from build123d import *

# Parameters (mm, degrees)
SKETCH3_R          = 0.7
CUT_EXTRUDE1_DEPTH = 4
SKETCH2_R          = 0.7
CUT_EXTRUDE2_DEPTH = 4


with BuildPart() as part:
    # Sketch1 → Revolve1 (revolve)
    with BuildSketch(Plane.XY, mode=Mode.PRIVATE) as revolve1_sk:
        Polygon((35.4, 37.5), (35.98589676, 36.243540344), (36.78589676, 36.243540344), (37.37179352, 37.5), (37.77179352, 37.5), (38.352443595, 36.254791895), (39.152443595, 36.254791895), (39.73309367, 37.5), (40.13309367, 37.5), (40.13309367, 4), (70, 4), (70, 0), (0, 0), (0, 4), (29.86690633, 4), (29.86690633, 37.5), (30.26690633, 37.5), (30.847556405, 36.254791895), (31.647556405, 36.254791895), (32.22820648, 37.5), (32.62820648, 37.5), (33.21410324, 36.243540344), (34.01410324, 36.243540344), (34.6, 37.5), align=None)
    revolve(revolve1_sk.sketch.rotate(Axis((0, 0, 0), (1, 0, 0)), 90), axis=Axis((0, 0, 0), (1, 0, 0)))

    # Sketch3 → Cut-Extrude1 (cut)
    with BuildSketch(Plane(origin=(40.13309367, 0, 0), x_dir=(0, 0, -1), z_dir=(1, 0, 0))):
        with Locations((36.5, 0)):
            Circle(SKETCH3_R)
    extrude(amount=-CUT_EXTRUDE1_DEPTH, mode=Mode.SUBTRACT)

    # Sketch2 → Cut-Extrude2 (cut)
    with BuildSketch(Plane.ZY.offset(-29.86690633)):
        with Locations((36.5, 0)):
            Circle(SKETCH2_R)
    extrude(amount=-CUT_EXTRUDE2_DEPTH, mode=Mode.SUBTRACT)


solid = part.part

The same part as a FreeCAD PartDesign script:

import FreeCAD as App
import Part
import Sketcher
from FreeCAD import Vector
Q = App.Units.Quantity

doc = App.newDocument("Part")
body = doc.addObject("PartDesign::Body", "Body")

# Sketch on XY plane
sketch1 = body.newObject("Sketcher::SketchObject", "Sketch")
sketch1.AttachmentSupport = (doc.getObject("XY_Plane"), [""])
sketch1.MapMode = "FlatFace"
sketch1.addGeometry([
    Part.LineSegment(Vector(35.99, 36.24, 0), Vector(35.4, 37.5, 0)),  # 0
    Part.LineSegment(Vector(35.4, 37.5, 0), Vector(34.6, 37.5, 0)),  # 1
    Part.LineSegment(Vector(34.6, 37.5, 0), Vector(34.01, 36.24, 0)),  # 2
    Part.LineSegment(Vector(34.01, 36.24, 0), Vector(33.21, 36.24, 0)),  # 3
    Part.LineSegment(Vector(33.21, 36.24, 0), Vector(32.63, 37.5, 0)),  # 4
    Part.LineSegment(Vector(32.63, 37.5, 0), Vector(32.23, 37.5, 0)),  # 5
    Part.LineSegment(Vector(32.23, 37.5, 0), Vector(31.65, 36.25, 0)),  # 6
    Part.LineSegment(Vector(31.65, 36.25, 0), Vector(30.85, 36.25, 0)),  # 7
    Part.LineSegment(Vector(30.85, 36.25, 0), Vector(30.27, 37.5, 0)),  # 8
    Part.LineSegment(Vector(30.27, 37.5, 0), Vector(29.87, 37.5, 0)),  # 9
    Part.LineSegment(Vector(29.87, 37.5, 0), Vector(29.87, 4, 0)),  # 10
    Part.LineSegment(Vector(29.87, 4, 0), Vector(0, 4, 0)),  # 11
    Part.LineSegment(Vector(0, 4, 0), Vector(0, 0, 0)),  # 12
    Part.LineSegment(Vector(0, 0, 0), Vector(70, 0, 0)),  # 13
    Part.LineSegment(Vector(70, 0, 0), Vector(70, 4, 0)),  # 14
    Part.LineSegment(Vector(70, 4, 0), Vector(40.13, 4, 0)),  # 15
    Part.LineSegment(Vector(40.13, 4, 0), Vector(40.13, 37.5, 0)),  # 16
    Part.LineSegment(Vector(40.13, 37.5, 0), Vector(39.73, 37.5, 0)),  # 17
    Part.LineSegment(Vector(39.73, 37.5, 0), Vector(39.15, 36.25, 0)),  # 18
    Part.LineSegment(Vector(39.15, 36.25, 0), Vector(38.35, 36.25, 0)),  # 19
    Part.LineSegment(Vector(38.35, 36.25, 0), Vector(37.77, 37.5, 0)),  # 20
    Part.LineSegment(Vector(37.77, 37.5, 0), Vector(37.37, 37.5, 0)),  # 21
    Part.LineSegment(Vector(37.37, 37.5, 0), Vector(36.79, 36.24, 0)),  # 22
    Part.LineSegment(Vector(36.79, 36.24, 0), Vector(35.99, 36.24, 0)),  # 23
], False)
sketch1.addConstraint([
    Sketcher.Constraint("Coincident", 0, 2, 1, 1),
    Sketcher.Constraint("Coincident", 1, 2, 2, 1),
    Sketcher.Constraint("Coincident", 2, 2, 3, 1),
    Sketcher.Constraint("Coincident", 3, 2, 4, 1),
    Sketcher.Constraint("Coincident", 4, 2, 5, 1),
    Sketcher.Constraint("Coincident", 5, 2, 6, 1),
    Sketcher.Constraint("Coincident", 6, 2, 7, 1),
    Sketcher.Constraint("Coincident", 7, 2, 8, 1),
    Sketcher.Constraint("Coincident", 8, 2, 9, 1),
    Sketcher.Constraint("Coincident", 9, 2, 10, 1),
    Sketcher.Constraint("Coincident", 10, 2, 11, 1),
    Sketcher.Constraint("Coincident", 11, 2, 12, 1),
    Sketcher.Constraint("Coincident", 12, 2, 13, 1),
    Sketcher.Constraint("Coincident", 13, 2, 14, 1),
    Sketcher.Constraint("Coincident", 14, 2, 15, 1),
    Sketcher.Constraint("Coincident", 15, 2, 16, 1),
    Sketcher.Constraint("Coincident", 16, 2, 17, 1),
    Sketcher.Constraint("Coincident", 17, 2, 18, 1),
    Sketcher.Constraint("Coincident", 18, 2, 19, 1),
    Sketcher.Constraint("Coincident", 19, 2, 20, 1),
    Sketcher.Constraint("Coincident", 20, 2, 21, 1),
    Sketcher.Constraint("Coincident", 21, 2, 22, 1),
    Sketcher.Constraint("Coincident", 22, 2, 23, 1),
    Sketcher.Constraint("Coincident", 23, 2, 0, 1),
    Sketcher.Constraint("Horizontal", 1),
    Sketcher.Constraint("Horizontal", 3),
    Sketcher.Constraint("Horizontal", 5),
    Sketcher.Constraint("Horizontal", 7),
    Sketcher.Constraint("Horizontal", 9),
    Sketcher.Constraint("Vertical", 10),
    Sketcher.Constraint("Horizontal", 11),
    Sketcher.Constraint("Vertical", 12),
    Sketcher.Constraint("Horizontal", 13),
    Sketcher.Constraint("Vertical", 14),
    Sketcher.Constraint("Horizontal", 15),
    Sketcher.Constraint("Vertical", 16),
    Sketcher.Constraint("Horizontal", 17),
    Sketcher.Constraint("Horizontal", 19),
    Sketcher.Constraint("Horizontal", 21),
    Sketcher.Constraint("Horizontal", 23),
    Sketcher.Constraint("Coincident", 12, 2, -1, 1),
    Sketcher.Constraint("Parallel", 0, 4),
    Sketcher.Constraint("Parallel", 2, 6),
    Sketcher.Constraint("Parallel", 4, 8),
    Sketcher.Constraint("Parallel", 6, 18),
    Sketcher.Constraint("Parallel", 8, 20),
    Sketcher.Constraint("Parallel", 18, 22),
    Sketcher.Constraint("Horizontal", 1, 2, 4, 2),
    Sketcher.Constraint("Horizontal", 5, 2, 8, 2),
    Sketcher.Constraint("Horizontal", 11, 2, 14, 2),
    Sketcher.Constraint("Horizontal", 9, 2, 16, 2),
    Sketcher.Constraint("Horizontal", 7, 2, 18, 2),
    Sketcher.Constraint("Horizontal", 17, 2, 20, 2),
    Sketcher.Constraint("Horizontal", 3, 2, 22, 2),
    Sketcher.Constraint("Equal", 1, 3),
    Sketcher.Constraint("Equal", 3, 7),
    Sketcher.Constraint("Equal", 5, 9),
    Sketcher.Constraint("Equal", 11, 15),
    Sketcher.Constraint("Equal", 9, 17),
    Sketcher.Constraint("Equal", 7, 19),
    Sketcher.Constraint("Equal", 17, 21),
    Sketcher.Constraint("Equal", 19, 23),
    Sketcher.Constraint("Equal", 0, 2),
    Sketcher.Constraint("DistanceX", 13, 1, 13, 2, 70.0),
    Sketcher.Constraint("DistanceY", 12, 2, 12, 1, 4.0),
    Sketcher.Constraint("Angle", 0, Q("115 deg")),
    Sketcher.Constraint("DistanceX", 1, 2, 1, 1, 0.8),
    Sketcher.Constraint("DistanceX", 5, 2, 5, 1, 0.4),
    Sketcher.Constraint("DistanceY", 10, 2, 10, 1, 33.5),
    Sketcher.Constraint("DistanceX", 8, 2, 5, 2, 1.9613),
    Sketcher.Constraint("Distance", 0, 1.38635),
])
revolution = body.newObject("PartDesign::Revolution", "Revolution")
revolution.Profile = sketch1
revolution.ReferenceAxis = (sketch1, ["H_Axis"])
revolution.Angle = 360

# Sketch on YZ plane
sketch2 = body.newObject("Sketcher::SketchObject", "Sketch001")
sketch2.AttachmentSupport = (doc.getObject("YZ_Plane"), [""])
sketch2.MapMode = "FlatFace"
sketch2.AttachmentOffset = App.Placement(Vector(0, 0, 40.133094), App.Rotation())
sketch2.addGeometry(Part.Circle(Vector(0, -36.5, 0), Vector(0, 0, 1), 0.7), False)
sketch2.addConstraint([
    Sketcher.Constraint("PointOnObject", 0, 3, -2),
    Sketcher.Constraint("Diameter", 0, 1.4),
    Sketcher.Constraint("DistanceY", 0, 3, -1, 1, 36.5),
])
pocket1 = body.newObject("PartDesign::Pocket", "Pocket")
pocket1.Profile = sketch2
pocket1.Length = 4

# Sketch on YZ plane
sketch3 = body.newObject("Sketcher::SketchObject", "Sketch002")
sketch3.AttachmentSupport = (doc.getObject("YZ_Plane"), [""])
sketch3.MapMode = "FlatFace"
sketch3.AttachmentOffset = App.Placement(Vector(0, 0, 29.866906), App.Rotation())
sketch3.addGeometry(Part.Circle(Vector(0, 36.5, 0), Vector(0, 0, 1), 0.7), False)
sketch3.addConstraint([
    Sketcher.Constraint("PointOnObject", 0, 3, -2),
    Sketcher.Constraint("Diameter", 0, 1.4),
    Sketcher.Constraint("DistanceY", -1, 1, 0, 3, 36.5),
])
pocket2 = body.newObject("PartDesign::Pocket", "Pocket001")
pocket2.Profile = sketch3
pocket2.Length = 4
pocket2.Reversed = True

doc.recompute()
